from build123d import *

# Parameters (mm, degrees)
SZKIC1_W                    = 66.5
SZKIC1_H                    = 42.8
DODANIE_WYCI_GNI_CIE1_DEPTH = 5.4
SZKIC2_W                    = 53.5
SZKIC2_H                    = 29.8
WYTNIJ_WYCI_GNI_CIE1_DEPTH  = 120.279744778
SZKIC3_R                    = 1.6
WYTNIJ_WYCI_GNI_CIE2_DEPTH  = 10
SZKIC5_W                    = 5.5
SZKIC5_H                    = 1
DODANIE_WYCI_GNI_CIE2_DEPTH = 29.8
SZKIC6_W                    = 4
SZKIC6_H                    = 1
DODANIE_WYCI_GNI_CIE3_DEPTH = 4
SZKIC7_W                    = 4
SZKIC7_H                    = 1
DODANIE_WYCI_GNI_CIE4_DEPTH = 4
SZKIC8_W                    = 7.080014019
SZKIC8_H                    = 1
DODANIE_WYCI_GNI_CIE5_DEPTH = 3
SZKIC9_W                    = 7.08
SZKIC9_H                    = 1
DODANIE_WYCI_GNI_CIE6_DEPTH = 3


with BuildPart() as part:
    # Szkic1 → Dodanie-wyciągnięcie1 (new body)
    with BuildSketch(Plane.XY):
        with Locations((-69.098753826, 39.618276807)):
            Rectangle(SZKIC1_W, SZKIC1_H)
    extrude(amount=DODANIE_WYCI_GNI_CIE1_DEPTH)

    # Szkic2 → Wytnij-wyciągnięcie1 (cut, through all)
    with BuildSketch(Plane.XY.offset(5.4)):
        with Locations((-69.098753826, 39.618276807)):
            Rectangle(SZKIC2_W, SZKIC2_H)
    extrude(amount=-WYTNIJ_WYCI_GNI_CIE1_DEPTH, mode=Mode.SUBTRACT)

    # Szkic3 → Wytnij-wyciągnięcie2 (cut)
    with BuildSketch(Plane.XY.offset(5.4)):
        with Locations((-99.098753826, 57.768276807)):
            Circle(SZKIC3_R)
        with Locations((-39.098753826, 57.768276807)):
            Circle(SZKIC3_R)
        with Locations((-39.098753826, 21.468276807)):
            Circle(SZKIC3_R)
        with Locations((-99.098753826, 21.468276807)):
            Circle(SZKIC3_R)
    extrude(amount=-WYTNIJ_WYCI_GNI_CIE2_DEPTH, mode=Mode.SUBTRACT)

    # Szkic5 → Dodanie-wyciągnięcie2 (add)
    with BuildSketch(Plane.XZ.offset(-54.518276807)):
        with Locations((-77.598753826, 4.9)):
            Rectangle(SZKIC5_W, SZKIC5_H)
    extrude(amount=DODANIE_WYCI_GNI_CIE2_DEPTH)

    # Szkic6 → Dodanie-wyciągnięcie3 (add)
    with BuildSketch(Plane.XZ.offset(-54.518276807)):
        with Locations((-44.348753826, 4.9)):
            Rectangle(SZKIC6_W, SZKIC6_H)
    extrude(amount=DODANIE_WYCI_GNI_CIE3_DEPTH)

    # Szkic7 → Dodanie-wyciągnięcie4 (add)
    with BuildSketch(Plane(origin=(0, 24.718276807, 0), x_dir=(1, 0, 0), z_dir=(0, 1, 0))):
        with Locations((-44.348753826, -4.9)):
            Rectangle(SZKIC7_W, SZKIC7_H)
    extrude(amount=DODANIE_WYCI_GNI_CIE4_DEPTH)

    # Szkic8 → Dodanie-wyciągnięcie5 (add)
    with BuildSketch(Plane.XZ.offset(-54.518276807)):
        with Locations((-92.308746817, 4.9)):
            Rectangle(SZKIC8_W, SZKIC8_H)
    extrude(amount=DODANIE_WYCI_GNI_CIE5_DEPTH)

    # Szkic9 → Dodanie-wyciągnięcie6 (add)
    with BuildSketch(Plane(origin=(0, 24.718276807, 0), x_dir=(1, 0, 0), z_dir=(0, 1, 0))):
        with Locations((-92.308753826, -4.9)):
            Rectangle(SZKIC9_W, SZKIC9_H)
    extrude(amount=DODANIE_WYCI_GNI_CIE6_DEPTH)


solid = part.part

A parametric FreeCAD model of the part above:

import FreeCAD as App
import Part
import Sketcher

V = App.Vector
Q = App.Units.Quantity

doc = App.newDocument("Part")
params = doc.addObject("Spreadsheet::Sheet", "Params")
for row, (alias, value) in enumerate([
    ("sketch1_width", "66.5 mm"),
    ("sketch1_height", "42.8 mm"),
    ("pad1_length", "5.4 mm"),
    ("sketch2_width", "53.5 mm"),
    ("sketch2_height", "29.8 mm"),
    ("sketch3_diameter", "3.2 mm"),
    ("pocket2_length", "10 mm"),
    ("sketch4_height", "1 mm"),
    ("sketch4_width", "5.5 mm"),
    ("pad2_length", "29.8 mm"),
    ("sketch5_width", "4 mm"),
    ("sketch5_height", "1 mm"),
    ("pad3_length", "4 mm"),
    ("sketch6_width", "4 mm"),
    ("sketch6_height", "1 mm"),
    ("pad4_length", "4 mm"),
    ("sketch7_height", "1 mm"),
    ("pad5_length", "3 mm"),
    ("sketch8_height", "1 mm"),
    ("sketch8_width", "7.08 mm"),
    ("pad6_length", "3 mm"),
], start=1):
    params.set(f"A{row}", alias)
    params.set(f"B{row}", "=" + value)
    params.setAlias(f"B{row}", alias)

body = doc.addObject("PartDesign::Body", "Body")

sketch1 = doc.addObject("Sketcher::SketchObject", "Sketch")
body.addObject(sketch1)
sketch1.AttachmentSupport = (doc.XY_Plane, [""])
sketch1.MapMode = "FlatFace"
sketch1.addGeometry([
    Part.LineSegment(V(-102, 61, 0), V(-102, 18, 0)),
    Part.LineSegment(V(-102, 18, 0), V(-36, 18, 0)),
    Part.LineSegment(V(-36, 18, 0), V(-36, 61, 0)),
    Part.LineSegment(V(-36, 61, 0), V(-102, 61, 0)),
], False)
sketch1.addConstraint([
    Sketcher.Constraint("Coincident", 0, 2, 1, 1),
    Sketcher.Constraint("Coincident", 1, 2, 2, 1),
    Sketcher.Constraint("Coincident", 2, 2, 3, 1),
    Sketcher.Constraint("Coincident", 3, 2, 0, 1),
    Sketcher.Constraint("Vertical", 0),
    Sketcher.Constraint("Horizontal", 1),
    Sketcher.Constraint("Vertical", 2),
    Sketcher.Constraint("Horizontal", 3),
    Sketcher.Constraint("DistanceX", 1, 1, 1, 2, Q("66.5 mm")),
    Sketcher.Constraint("DistanceY", 0, 2, 0, 1, Q("42.8 mm")),
    Sketcher.Constraint("DistanceX", 0, 2, -1, 1, Q("102.348754 mm")),
    Sketcher.Constraint("DistanceY", -1, 1, 0, 2, Q("18.218277 mm")),
])
sketch1.setExpression("Constraints[8]", "Params.sketch1_width")
sketch1.setExpression("Constraints[9]", "Params.sketch1_height")
pad1 = doc.addObject("PartDesign::Pad", "Pad")
body.addObject(pad1)
pad1.Profile = sketch1
pad1.setExpression("Length", "Params.pad1_length")

sketch2 = doc.addObject("Sketcher::SketchObject", "Sketch001")
body.addObject(sketch2)
sketch2.AttachmentSupport = (doc.XY_Plane, [""])
sketch2.MapMode = "FlatFace"
sketch2.AttachmentOffset = App.Placement(V(0, 0, 5.4), App.Rotation())
sketch2.addGeometry([
    Part.LineSegment(V(-96, 55, 0), V(-96, 25, 0)),
    Part.LineSegment(V(-96, 25, 0), V(-42, 25, 0)),
    Part.LineSegment(V(-42, 25, 0), V(-42, 55, 0)),
    Part.LineSegment(V(-42, 55, 0), V(-96, 55, 0)),
], False)
sketch2.addConstraint([
    Sketcher.Constraint("Coincident", 0, 2, 1, 1),
    Sketcher.Constraint("Coincident", 1, 2, 2, 1),
    Sketcher.Constraint("Coincident", 2, 2, 3, 1),
    Sketcher.Constraint("Coincident", 3, 2, 0, 1),
    Sketcher.Constraint("Vertical", 0),
    Sketcher.Constraint("Horizontal", 1),
    Sketcher.Constraint("Vertical", 2),
    Sketcher.Constraint("Horizontal", 3),
    Sketcher.Constraint("DistanceX", 1, 1, 1, 2, Q("53.5 mm")),
    Sketcher.Constraint("DistanceY", 0, 2, 0, 1, Q("29.8 mm")),
    Sketcher.Constraint("DistanceX", 0, 2, -1, 1, Q("95.848754 mm")),
    Sketcher.Constraint("DistanceY", -1, 1, 0, 2, Q("24.718277 mm")),
])
sketch2.setExpression("Constraints[8]", "Params.sketch2_width")
sketch2.setExpression("Constraints[9]", "Params.sketch2_height")
pocket1 = doc.addObject("PartDesign::Pocket", "Pocket")
body.addObject(pocket1)
pocket1.Profile = sketch2
pocket1.Type = "ThroughAll"

sketch3 = doc.addObject("Sketcher::SketchObject", "Sketch002")
body.addObject(sketch3)
sketch3.AttachmentSupport = (doc.XY_Plane, [""])
sketch3.MapMode = "FlatFace"
sketch3.AttachmentOffset = App.Placement(V(0, 0, 5.4), App.Rotation())
sketch3.addGeometry([
    Part.Circle(V(-99.1, 57.8, 0), V(0, 0, 1), 1.6),
    Part.Circle(V(-39.1, 57.8, 0), V(0, 0, 1), 1.6),
    Part.Circle(V(-39.1, 21.5, 0), V(0, 0, 1), 1.6),
    Part.Circle(V(-99.1, 21.5, 0), V(0, 0, 1), 1.6),
], False)
sketch3.addConstraint([
    Sketcher.Constraint("Equal", 0, 1),
    Sketcher.Constraint("Equal", 1, 2),
    Sketcher.Constraint("Equal", 2, 3),
    Sketcher.Constraint("Horizontal", 0, 3, 1, 3),
    Sketcher.Constraint("Horizontal", 2, 3, 3, 3),
    Sketcher.Constraint("Vertical", 1, 3, 2, 3),
    Sketcher.Constraint("Vertical", 0, 3, 3, 3),
    Sketcher.Constraint("Diameter", 0, Q("3.2 mm")),
    Sketcher.Constraint("DistanceX", 0, 3, 1, 3, Q("60 mm")),
    Sketcher.Constraint("DistanceY", 2, 3, 1, 3, Q("36.3 mm")),
    Sketcher.Constraint("DistanceX", 0, 3, -1, 1, Q("99.098754 mm")),
    Sketcher.Constraint("DistanceY", -1, 1, 0, 3, Q("57.768277 mm")),
])
sketch3.setExpression("Constraints[7]", "Params.sketch3_diameter")
pocket2 = doc.addObject("PartDesign::Pocket", "Pocket001")
body.addObject(pocket2)
pocket2.Profile = sketch3
pocket2.setExpression("Length", "Params.pocket2_length")

sketch4 = doc.addObject("Sketcher::SketchObject", "Sketch003")
body.addObject(sketch4)
sketch4.AttachmentSupport = (doc.XZ_Plane, [""])
sketch4.MapMode = "FlatFace"
sketch4.AttachmentOffset = App.Placement(V(0, 0, -54.518277), App.Rotation())
sketch4.addGeometry([
    Part.LineSegment(V(-80.3, 5.4, 0), V(-80.3, 4.4, 0)),
    Part.LineSegment(V(-80.3, 4.4, 0), V(-74.8, 4.4, 0)),
    Part.LineSegment(V(-74.8, 4.4, 0), V(-74.8, 5.4, 0)),
    Part.LineSegment(V(-74.8, 5.4, 0), V(-80.3, 5.4, 0)),
], False)
sketch4.addConstraint([
    Sketcher.Constraint("Coincident", 0, 2, 1, 1),
    Sketcher.Constraint("Coincident", 1, 2, 2, 1),
    Sketcher.Constraint("Coincident", 2, 2, 3, 1),
    Sketcher.Constraint("Coincident", 3, 2, 0, 1),
    Sketcher.Constraint("Vertical", 0),
    Sketcher.Constraint("Horizontal", 1),
    Sketcher.Constraint("Vertical", 2),
    Sketcher.Constraint("Horizontal", 3),
    Sketcher.Constraint("DistanceY", 0, 2, 0, 1, Q("1 mm")),
    Sketcher.Constraint("DistanceX", 1, 1, 1, 2, Q("5.5 mm")),
    Sketcher.Constraint("DistanceY", -1, 1, 0, 2, Q("4.4 mm")),
    Sketcher.Constraint("DistanceX", 0, 2, -1, 1, Q("80.348754 mm")),
])
sketch4.setExpression("Constraints[8]", "Params.sketch4_height")
sketch4.setExpression("Constraints[9]", "Params.sketch4_width")
pad2 = doc.addObject("PartDesign::Pad", "Pad001")
body.addObject(pad2)
pad2.Profile = sketch4
pad2.setExpression("Length", "Params.pad2_length")

sketch5 = doc.addObject("Sketcher::SketchObject", "Sketch004")
body.addObject(sketch5)
sketch5.AttachmentSupport = (doc.XZ_Plane, [""])
sketch5.MapMode = "FlatFace"
sketch5.AttachmentOffset = App.Placement(V(0, 0, -54.518277), App.Rotation())
sketch5.addGeometry([
    Part.LineSegment(V(-46.3, 5.4, 0), V(-46.3, 4.4, 0)),
    Part.LineSegment(V(-46.3, 4.4, 0), V(-42.3, 4.4, 0)),
    Part.LineSegment(V(-42.3, 4.4, 0), V(-42.3, 5.4, 0)),
    Part.LineSegment(V(-42.3, 5.4, 0), V(-46.3, 5.4, 0)),
], False)
sketch5.addConstraint([
    Sketcher.Constraint("Coincident", 0, 2, 1, 1),
    Sketcher.Constraint("Coincident", 1, 2, 2, 1),
    Sketcher.Constraint("Coincident", 2, 2, 3, 1),
    Sketcher.Constraint("Coincident", 3, 2, 0, 1),
    Sketcher.Constraint("Vertical", 0),
    Sketcher.Constraint("Horizontal", 1),
    Sketcher.Constraint("Vertical", 2),
    Sketcher.Constraint("Horizontal", 3),
    Sketcher.Constraint("DistanceX", 1, 1, 1, 2, Q("4 mm")),
    Sketcher.Constraint("DistanceY", 0, 2, 0, 1, Q("1 mm")),
    Sketcher.Constraint("DistanceY", -1, 1, 0, 2, Q("4.4 mm")),
    Sketcher.Constraint("DistanceX", 0, 2, -1, 1, Q("46.348754 mm")),
])
sketch5.setExpression("Constraints[8]", "Params.sketch5_width")
sketch5.setExpression("Constraints[9]", "Params.sketch5_height")
pad3 = doc.addObject("PartDesign::Pad", "Pad002")
body.addObject(pad3)
pad3.Profile = sketch5
pad3.setExpression("Length", "Params.pad3_length")

sketch6 = doc.addObject("Sketcher::SketchObject", "Sketch005")
body.addObject(sketch6)
sketch6.AttachmentSupport = (doc.XZ_Plane, [""])
sketch6.MapMode = "FlatFace"
sketch6.AttachmentOffset = App.Placement(V(0, 0, -24.718277), App.Rotation())
sketch6.addGeometry([
    Part.LineSegment(V(-46.3, 4.4, 0), V(-46.3, 5.4, 0)),
    Part.LineSegment(V(-46.3, 5.4, 0), V(-42.3, 5.4, 0)),
    Part.LineSegment(V(-42.3, 5.4, 0), V(-42.3, 4.4, 0)),
    Part.LineSegment(V(-42.3, 4.4, 0), V(-46.3, 4.4, 0)),
], False)
sketch6.addConstraint([
    Sketcher.Constraint("Coincident", 0, 2, 1, 1),
    Sketcher.Constraint("Coincident", 1, 2, 2, 1),
    Sketcher.Constraint("Coincident", 2, 2, 3, 1),
    Sketcher.Constraint("Coincident", 3, 2, 0, 1),
    Sketcher.Constraint("Vertical", 0),
    Sketcher.Constraint("Horizontal", 1),
    Sketcher.Constraint("Vertical", 2),
    Sketcher.Constraint("Horizontal", 3),
    Sketcher.Constraint("DistanceX", 1, 1, 1, 2, Q("4 mm")),
    Sketcher.Constraint("DistanceY", 0, 1, 0, 2, Q("1 mm")),
    Sketcher.Constraint("DistanceY", -1, 1, 0, 2, Q("5.4 mm")),
    Sketcher.Constraint("DistanceX", 0, 2, -1, 1, Q("46.348754 mm")),
])
sketch6.setExpression("Constraints[8]", "Params.sketch6_width")
sketch6.setExpression("Constraints[9]", "Params.sketch6_height")
pad4 = doc.addObject("PartDesign::Pad", "Pad003")
body.addObject(pad4)
pad4.Profile = sketch6
pad4.setExpression("Length", "Params.pad4_length")
pad4.Reversed = True

sketch7 = doc.addObject("Sketcher::SketchObject", "Sketch006")
body.addObject(sketch7)
sketch7.AttachmentSupport = (doc.XZ_Plane, [""])
sketch7.MapMode = "FlatFace"
sketch7.AttachmentOffset = App.Placement(V(0, 0, -54.518277), App.Rotation())
sketch7.addGeometry([
    Part.LineSegment(V(-95.8, 5.4, 0), V(-95.8, 4.4, 0)),
    Part.LineSegment(V(-95.8, 4.4, 0), V(-88.8, 4.4, 0)),
    Part.LineSegment(V(-88.8, 4.4, 0), V(-88.8, 5.4, 0)),
    Part.LineSegment(V(-88.8, 5.4, 0), V(-95.8, 5.4, 0)),
], False)
sketch7.addConstraint([
    Sketcher.Constraint("Coincident", 0, 2, 1, 1),
    Sketcher.Constraint("Coincident", 1, 2, 2, 1),
    Sketcher.Constraint("Coincident", 2, 2, 3, 1),
    Sketcher.Constraint("Coincident", 3, 2, 0, 1),
    Sketcher.Constraint("Vertical", 0),
    Sketcher.Constraint("Horizontal", 1),
    Sketcher.Constraint("Vertical", 2),
    Sketcher.Constraint("Horizontal", 3),
    Sketcher.Constraint("DistanceY", 0, 2, 0, 1, Q("1 mm")),
    Sketcher.Constraint("DistanceY", -1, 1, 0, 2, Q("4.4 mm")),
    Sketcher.Constraint("DistanceX", 1, 1, 1, 2, Q("7.080014 mm")),
    Sketcher.Constraint("DistanceX", 1, 2, -1, 1, Q("88.76874 mm")),
])
sketch7.setExpression("Constraints[8]", "Params.sketch7_height")
pad5 = doc.addObject("PartDesign::Pad", "Pad004")
body.addObject(pad5)
pad5.Profile = sketch7
pad5.setExpression("Length", "Params.pad5_length")

sketch8 = doc.addObject("Sketcher::SketchObject", "Sketch007")
body.addObject(sketch8)
sketch8.AttachmentSupport = (doc.XZ_Plane, [""])
sketch8.MapMode = "FlatFace"
sketch8.AttachmentOffset = App.Placement(V(0, 0, -24.718277), App.Rotation())
sketch8.addGeometry([
    Part.LineSegment(V(-95.8, 4.4, 0), V(-95.8, 5.4, 0)),
    Part.LineSegment(V(-95.8, 5.4, 0), V(-88.8, 5.4, 0)),
    Part.LineSegment(V(-88.8, 5.4, 0), V(-88.8, 4.4, 0)),
    Part.LineSegment(V(-88.8, 4.4, 0), V(-95.8, 4.4, 0)),
], False)
sketch8.addConstraint([
    Sketcher.Constraint("Coincident", 0, 2, 1, 1),
    Sketcher.Constraint("Coincident", 1, 2, 2, 1),
    Sketcher.Constraint("Coincident", 2, 2, 3, 1),
    Sketcher.Constraint("Coincident", 3, 2, 0, 1),
    Sketcher.Constraint("Vertical", 0),
    Sketcher.Constraint("Horizontal", 1),
    Sketcher.Constraint("Vertical", 2),
    Sketcher.Constraint("Horizontal", 3),
    Sketcher.Constraint("DistanceY", 0, 1, 0, 2, Q("1 mm")),
    Sketcher.Constraint("DistanceX", 1, 1, 1, 2, Q("7.08 mm")),
    Sketcher.Constraint("DistanceY", -1, 1, 0, 2, Q("5.4 mm")),
    Sketcher.Constraint("DistanceX", 0, 2, -1, 1, Q("95.848754 mm")),
])
sketch8.setExpression("Constraints[8]", "Params.sketch8_height")
sketch8.setExpression("Constraints[9]", "Params.sketch8_width")
pad6 = doc.addObject("PartDesign::Pad", "Pad005")
body.addObject(pad6)
pad6.Profile = sketch8
pad6.setExpression("Length", "Params.pad6_length")
pad6.Reversed = True

doc.recompute()
